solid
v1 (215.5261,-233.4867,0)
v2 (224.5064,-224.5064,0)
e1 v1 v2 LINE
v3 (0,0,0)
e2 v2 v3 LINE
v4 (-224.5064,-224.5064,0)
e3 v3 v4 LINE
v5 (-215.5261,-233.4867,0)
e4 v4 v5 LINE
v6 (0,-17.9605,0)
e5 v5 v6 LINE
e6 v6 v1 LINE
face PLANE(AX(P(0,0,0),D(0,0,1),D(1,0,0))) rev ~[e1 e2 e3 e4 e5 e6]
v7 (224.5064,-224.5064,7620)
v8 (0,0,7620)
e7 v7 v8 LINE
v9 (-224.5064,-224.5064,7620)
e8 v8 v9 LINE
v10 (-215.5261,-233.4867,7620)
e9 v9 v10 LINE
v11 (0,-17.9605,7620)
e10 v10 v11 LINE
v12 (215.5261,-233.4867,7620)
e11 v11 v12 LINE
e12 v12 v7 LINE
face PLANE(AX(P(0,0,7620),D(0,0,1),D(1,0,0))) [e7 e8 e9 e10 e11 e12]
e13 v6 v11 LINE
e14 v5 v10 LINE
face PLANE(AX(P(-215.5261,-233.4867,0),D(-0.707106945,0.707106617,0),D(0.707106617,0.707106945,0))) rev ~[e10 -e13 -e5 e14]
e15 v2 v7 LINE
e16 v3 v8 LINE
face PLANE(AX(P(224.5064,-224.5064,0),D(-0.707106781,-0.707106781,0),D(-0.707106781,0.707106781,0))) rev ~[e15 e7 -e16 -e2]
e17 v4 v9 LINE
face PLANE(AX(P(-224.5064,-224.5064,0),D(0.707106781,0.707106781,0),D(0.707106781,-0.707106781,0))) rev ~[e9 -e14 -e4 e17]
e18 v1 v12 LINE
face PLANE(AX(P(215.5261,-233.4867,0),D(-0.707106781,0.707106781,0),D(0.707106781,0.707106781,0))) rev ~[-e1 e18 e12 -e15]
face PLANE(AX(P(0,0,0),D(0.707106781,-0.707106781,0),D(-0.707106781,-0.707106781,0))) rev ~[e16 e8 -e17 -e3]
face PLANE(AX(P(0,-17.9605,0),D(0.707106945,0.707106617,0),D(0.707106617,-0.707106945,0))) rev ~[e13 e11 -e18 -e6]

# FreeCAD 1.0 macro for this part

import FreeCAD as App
import Part
import Sketcher
from FreeCAD import Vector
Q = App.Units.Quantity

doc = App.newDocument("Part")
body = doc.addObject("PartDesign::Body", "Body")

sketch1 = body.newObject("Sketcher::SketchObject", "Sketch")
sketch1.AttachmentSupport = (doc.getObject("XY_Plane"), [""])
sketch1.MapMode = "FlatFace"
sketch1.addGeometry([
    Part.LineSegment(Vector(224.5064, -224.5064, 0), Vector(0, 0, 0)),
    Part.LineSegment(Vector(0, 0, 0), Vector(-224.5064, -224.5064, 0)),
    Part.LineSegment(Vector(-224.5064, -224.5064, 0), Vector(-215.5261, -233.4867, 0)),
    Part.LineSegment(Vector(-215.5261, -233.4867, 0), Vector(0, -17.9605, 0)),
    Part.LineSegment(Vector(0, -17.9605, 0), Vector(215.5261, -233.4867, 0)),
    Part.LineSegment(Vector(215.5261, -233.4867, 0), Vector(224.5064, -224.5064, 0)),
], False)
sketch1.addConstraint([
    Sketcher.Constraint("Coincident", 0, 2, 1, 1),
    Sketcher.Constraint("Coincident", 1, 2, 2, 1),
    Sketcher.Constraint("Coincident", 2, 2, 3, 1),
    Sketcher.Constraint("Coincident", 3, 2, 4, 1),
    Sketcher.Constraint("Coincident", 4, 2, 5, 1),
    Sketcher.Constraint("Coincident", 5, 2, 0, 1),
    Sketcher.Constraint("Coincident", 0, 2, -1, 1),
    Sketcher.Constraint("Symmetric", 2, 2, 4, 2, -2),
    Sketcher.Constraint("Symmetric", 1, 2, 5, 2, -2),
    Sketcher.Constraint("PointOnObject", 3, 2, -2),
    Sketcher.Constraint("Perpendicular", 0, 1),
    Sketcher.Constraint("Perpendicular", 1, 2),
    Sketcher.Constraint("Perpendicular", 2, 3),
    Sketcher.Constraint("Distance", 3, Q("12 in")),
    Sketcher.Constraint("Distance", 2, Q("0.5 in")),
])
pad1 = body.newObject("PartDesign::Pad", "Pad")
pad1.Profile = sketch1
pad1.Length = Q("300 in")

doc.recompute()
